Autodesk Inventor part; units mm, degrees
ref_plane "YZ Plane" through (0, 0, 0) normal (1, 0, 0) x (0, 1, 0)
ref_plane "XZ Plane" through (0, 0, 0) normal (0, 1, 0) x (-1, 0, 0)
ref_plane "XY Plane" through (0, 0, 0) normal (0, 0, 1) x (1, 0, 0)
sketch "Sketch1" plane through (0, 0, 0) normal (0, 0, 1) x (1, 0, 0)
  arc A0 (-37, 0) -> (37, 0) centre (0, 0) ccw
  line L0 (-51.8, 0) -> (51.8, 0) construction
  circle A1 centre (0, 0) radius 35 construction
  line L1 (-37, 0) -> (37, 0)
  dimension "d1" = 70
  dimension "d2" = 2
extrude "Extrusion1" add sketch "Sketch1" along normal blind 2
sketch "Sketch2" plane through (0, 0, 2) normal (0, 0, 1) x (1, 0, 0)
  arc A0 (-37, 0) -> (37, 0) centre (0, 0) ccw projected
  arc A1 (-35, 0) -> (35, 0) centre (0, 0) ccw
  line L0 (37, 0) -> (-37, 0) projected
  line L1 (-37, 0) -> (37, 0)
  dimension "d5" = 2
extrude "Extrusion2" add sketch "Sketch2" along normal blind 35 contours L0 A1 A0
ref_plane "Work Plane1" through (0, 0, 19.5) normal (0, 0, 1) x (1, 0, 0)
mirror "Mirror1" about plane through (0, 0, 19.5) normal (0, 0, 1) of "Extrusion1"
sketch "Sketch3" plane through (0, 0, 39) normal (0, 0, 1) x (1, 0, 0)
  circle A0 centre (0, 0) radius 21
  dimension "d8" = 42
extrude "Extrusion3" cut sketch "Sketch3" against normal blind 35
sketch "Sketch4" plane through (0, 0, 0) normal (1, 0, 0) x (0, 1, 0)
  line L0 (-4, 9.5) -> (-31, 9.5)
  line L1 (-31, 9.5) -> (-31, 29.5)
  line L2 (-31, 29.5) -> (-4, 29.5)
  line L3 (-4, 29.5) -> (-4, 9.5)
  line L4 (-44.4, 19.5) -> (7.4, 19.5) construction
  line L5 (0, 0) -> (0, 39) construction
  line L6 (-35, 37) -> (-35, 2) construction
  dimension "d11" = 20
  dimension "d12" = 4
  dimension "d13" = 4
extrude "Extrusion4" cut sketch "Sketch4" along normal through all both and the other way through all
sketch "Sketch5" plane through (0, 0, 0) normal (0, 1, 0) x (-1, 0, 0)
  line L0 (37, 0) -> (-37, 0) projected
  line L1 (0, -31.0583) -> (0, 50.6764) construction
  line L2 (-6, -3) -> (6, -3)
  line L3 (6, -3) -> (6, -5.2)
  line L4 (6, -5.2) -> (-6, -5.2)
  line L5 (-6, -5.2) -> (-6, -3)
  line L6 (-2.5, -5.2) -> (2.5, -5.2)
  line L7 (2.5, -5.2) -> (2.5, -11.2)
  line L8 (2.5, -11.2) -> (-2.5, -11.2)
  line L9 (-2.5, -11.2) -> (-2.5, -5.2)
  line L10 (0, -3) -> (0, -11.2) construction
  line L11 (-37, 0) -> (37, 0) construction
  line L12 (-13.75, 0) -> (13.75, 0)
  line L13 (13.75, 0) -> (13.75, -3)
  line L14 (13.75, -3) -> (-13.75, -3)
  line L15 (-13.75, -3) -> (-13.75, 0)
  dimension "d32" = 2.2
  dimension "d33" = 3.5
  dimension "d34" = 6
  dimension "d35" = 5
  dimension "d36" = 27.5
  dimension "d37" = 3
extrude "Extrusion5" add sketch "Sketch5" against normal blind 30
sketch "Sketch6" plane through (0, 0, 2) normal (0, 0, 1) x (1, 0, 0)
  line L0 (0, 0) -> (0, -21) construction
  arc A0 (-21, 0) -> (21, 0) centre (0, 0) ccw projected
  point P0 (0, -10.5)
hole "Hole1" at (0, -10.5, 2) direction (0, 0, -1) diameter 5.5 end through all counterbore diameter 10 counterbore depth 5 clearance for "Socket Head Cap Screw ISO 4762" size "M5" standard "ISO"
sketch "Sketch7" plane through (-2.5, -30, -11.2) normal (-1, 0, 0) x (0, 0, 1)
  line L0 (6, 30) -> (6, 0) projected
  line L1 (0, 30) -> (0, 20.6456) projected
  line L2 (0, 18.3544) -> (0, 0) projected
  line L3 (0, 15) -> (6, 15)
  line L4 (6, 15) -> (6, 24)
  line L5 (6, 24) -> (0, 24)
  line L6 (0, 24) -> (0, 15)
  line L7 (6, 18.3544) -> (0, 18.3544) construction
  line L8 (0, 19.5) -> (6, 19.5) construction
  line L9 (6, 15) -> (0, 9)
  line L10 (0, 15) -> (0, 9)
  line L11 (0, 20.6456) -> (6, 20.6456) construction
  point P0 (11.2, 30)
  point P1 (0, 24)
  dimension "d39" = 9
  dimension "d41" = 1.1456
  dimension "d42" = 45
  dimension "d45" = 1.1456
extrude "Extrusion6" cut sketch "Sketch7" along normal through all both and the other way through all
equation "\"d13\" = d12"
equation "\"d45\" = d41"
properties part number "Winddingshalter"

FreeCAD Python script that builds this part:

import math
import FreeCAD as App
import Part
import Sketcher
Q = App.Units.Quantity


def add_polygon(sketch, points):
    """Adds a closed chain of lines whose ends are joined by coincident constraints."""
    first, n = sketch.GeometryCount, len(points)
    for a, b in zip(points, points[1:] + points[:1]):
        sketch.addGeometry(Part.LineSegment(App.Vector(*a, 0), App.Vector(*b, 0)), False)
    for i in range(n):
        sketch.addConstraint(Sketcher.Constraint("Coincident", first + i, 2, first + (i + 1) % n, 1))

doc = App.newDocument("Part")
body = doc.addObject("PartDesign::Body", "Body")

# Sketch on XY plane
sketch1 = body.newObject("Sketcher::SketchObject", "Sketch")
sketch1.AttachmentSupport = (doc.getObject("XY_Plane"), [""])
sketch1.MapMode = "FlatFace"
sketch1.addGeometry([
    Part.LineSegment(App.Vector(37, 0, 0), App.Vector(-37, 0, 0)),
    Part.ArcOfCircle(Part.Circle(App.Vector(0, 0, 0), App.Vector(0, 0, 1), 37), math.radians(180), math.radians(360)),
], False)
sketch1.addConstraint([
    Sketcher.Constraint("Coincident", 0, 1, 1, 2),
    Sketcher.Constraint("Coincident", 1, 1, 0, 2),
    Sketcher.Constraint("Horizontal", 0),
    Sketcher.Constraint("Coincident", 1, 3, -1, 1),
    Sketcher.Constraint("PointOnObject", 0, 1, -1),
    Sketcher.Constraint("Radius", 1, 37.0),
])
pad1 = body.newObject("PartDesign::Pad", "Pad")
pad1.Profile = sketch1
pad1.Length = 2

# Sketch on XY plane
sketch2 = body.newObject("Sketcher::SketchObject", "Sketch001")
sketch2.AttachmentSupport = (doc.getObject("XY_Plane"), [""])
sketch2.MapMode = "FlatFace"
sketch2.AttachmentOffset = App.Placement(App.Vector(0, 0, 2), App.Rotation())
sketch2.addGeometry([
    Part.LineSegment(App.Vector(-35, 0, 0), App.Vector(-37, 0, 0)),
    Part.ArcOfCircle(Part.Circle(App.Vector(0, 0, 0), App.Vector(0, 0, 1), 37), math.radians(180), math.radians(360)),
    Part.LineSegment(App.Vector(37, 0, 0), App.Vector(35, 0, 0)),
    Part.ArcOfCircle(Part.Circle(App.Vector(0, 0, 0), App.Vector(0, 0, 1), 35), math.radians(180), math.radians(360)),
], False)
sketch2.addConstraint([
    Sketcher.Constraint("Coincident", 0, 2, 1, 1),
    Sketcher.Constraint("Coincident", 1, 2, 2, 1),
    Sketcher.Constraint("Coincident", 2, 2, 3, 2),
    Sketcher.Constraint("Coincident", 3, 1, 0, 1),
    Sketcher.Constraint("Horizontal", 0),
    Sketcher.Constraint("Horizontal", 2),
    Sketcher.Constraint("Coincident", 1, 3, -1, 1),
    Sketcher.Constraint("Coincident", 3, 3, -1, 1),
    Sketcher.Constraint("PointOnObject", 0, 2, -1),
    Sketcher.Constraint("PointOnObject", 1, 2, -1),
    Sketcher.Constraint("DistanceX", 0, 2, 0, 1, 2.0),
    Sketcher.Constraint("Radius", 1, 37.0),
])
pad2 = body.newObject("PartDesign::Pad", "Pad001")
pad2.Profile = sketch2
pad2.Length = 35
doc.recompute()

datumplane = body.newObject("PartDesign::Plane", "DatumPlane")
datumplane.AttachmentSupport = (doc.getObject("XY_Plane"), [""])
datumplane.MapMode = "FlatFace"
datumplane.AttachmentOffset = App.Placement(App.Vector(0, 0, 19.5), App.Rotation())
mirrored = body.newObject("PartDesign::Mirrored", "Mirrored")
mirrored.Originals = [pad1]
mirrored.MirrorPlane = (datumplane, [""])
body.Tip = mirrored

# Sketch on XY plane
sketch3 = body.newObject("Sketcher::SketchObject", "Sketch002")
sketch3.AttachmentSupport = (doc.getObject("XY_Plane"), [""])
sketch3.MapMode = "FlatFace"
sketch3.AttachmentOffset = App.Placement(App.Vector(0, 0, 39), App.Rotation())
sketch3.addGeometry(Part.Circle(App.Vector(0, 0, 0), App.Vector(0, 0, 1), 21), False)
sketch3.addConstraint([
    Sketcher.Constraint("Coincident", 0, 3, -1, 1),
    Sketcher.Constraint("Diameter", 0, 42.0),
])
pocket1 = body.newObject("PartDesign::Pocket", "Pocket")
pocket1.Profile = sketch3
pocket1.Length = 35

# Sketch on YZ plane
sketch4 = body.newObject("Sketcher::SketchObject", "Sketch003")
sketch4.AttachmentSupport = (doc.getObject("YZ_Plane"), [""])
sketch4.MapMode = "FlatFace"
add_polygon(sketch4, [(-31, 9.5), (-4, 9.5), (-4, 29.5), (-31, 29.5)])  # lines 0-3
sketch4.addConstraint([
    Sketcher.Constraint("Horizontal", 0),
    Sketcher.Constraint("Vertical", 1),
    Sketcher.Constraint("Horizontal", 2),
    Sketcher.Constraint("Vertical", 3),
    Sketcher.Constraint("DistanceY", 1, 1, 1, 2, 20.0),
    Sketcher.Constraint("DistanceX", 0, 2, -1, 1, 4.0),
    Sketcher.Constraint("DistanceX", 0, 1, 0, 2, 27.0),
    Sketcher.Constraint("DistanceY", -1, 1, 0, 2, 9.5),
])
pocket2 = body.newObject("PartDesign::Pocket", "Pocket001")
pocket2.Profile = sketch4
pocket2.Type = "ThroughAll"
pocket2.Midplane = True

# Sketch on XZ plane
sketch5 = body.newObject("Sketcher::SketchObject", "Sketch004")
sketch5.AttachmentSupport = (doc.getObject("XZ_Plane"), [""])
sketch5.MapMode = "FlatFace"
add_polygon(sketch5, [(-13.75, -3), (-13.75, 0), (13.75, 0), (13.75, -3), (6, -3), (6, -5.2), (2.5, -5.2), (2.5, -11.2), (-2.5, -11.2), (-2.5, -5.2), (-6, -5.2), (-6, -3)])  # lines 0-11
sketch5.addConstraint([
    Sketcher.Constraint("Vertical", 0),
    Sketcher.Constraint("Horizontal", 1),
    Sketcher.Constraint("Vertical", 2),
    Sketcher.Constraint("Horizontal", 3),
    Sketcher.Constraint("Vertical", 4),
    Sketcher.Constraint("Horizontal", 5),
    Sketcher.Constraint("Vertical", 6),
    Sketcher.Constraint("Horizontal", 7),
    Sketcher.Constraint("Vertical", 8),
    Sketcher.Constraint("Horizontal", 9),
    Sketcher.Constraint("Vertical", 10),
    Sketcher.Constraint("Horizontal", 11),
    Sketcher.Constraint("Symmetric", 0, 2, 1, 2, -1, 1),
    Sketcher.Constraint("Symmetric", 5, 2, 8, 2, -2),
    Sketcher.Constraint("Symmetric", 3, 2, 10, 2, -2),
    Sketcher.Constraint("DistanceX", 7, 2, 7, 1, 5.0),
    Sketcher.Constraint("DistanceY", 0, 1, 0, 2, 3.0),
    Sketcher.Constraint("DistanceY", 6, 2, 6, 1, 6.0),
    Sketcher.Constraint("DistanceX", 1, 1, 1, 2, 27.5),
    Sketcher.Constraint("DistanceX", 5, 2, 5, 1, 3.5),
    Sketcher.Constraint("DistanceY", 4, 2, 4, 1, 2.2),
])
pad3 = body.newObject("PartDesign::Pad", "Pad002")
pad3.Profile = sketch5
pad3.Length = 30

# Sketch on XY plane
sketch6 = body.newObject("Sketcher::SketchObject", "Sketch005")
sketch6.AttachmentSupport = (doc.getObject("XY_Plane"), [""])
sketch6.MapMode = "FlatFace"
sketch6.AttachmentOffset = App.Placement(App.Vector(0, 0, 2), App.Rotation())
sketch6.addGeometry(Part.Circle(App.Vector(0, -10.5, 0), App.Vector(0, 0, 1), 2.75), False)
sketch6.addConstraint([
    Sketcher.Constraint("PointOnObject", 0, 3, -2),
    Sketcher.Constraint("Diameter", 0, 5.5),
    Sketcher.Constraint("DistanceY", 0, 3, -1, 1, 10.5),
])
doc.recompute()
hole = body.newObject("PartDesign::Hole", "Hole")
hole.Profile = sketch6
hole.ThreadType = "None"
hole.Diameter = 5.5
hole.DepthType = "ThroughAll"
hole.HoleCutType = "Counterbore"
hole.HoleCutDiameter = 10
hole.HoleCutDepth = 5

# Sketch on YZ plane
sketch7 = body.newObject("Sketcher::SketchObject", "Sketch006")
sketch7.AttachmentSupport = (doc.getObject("YZ_Plane"), [""])
sketch7.MapMode = "FlatFace"
sketch7.AttachmentOffset = App.Placement(App.Vector(0, 0, -2.5), App.Rotation())
add_polygon(sketch7, [(-15, -5.2), (-6, -5.2), (-6, -11.2), (-21, -11.2)])  # lines 0-3
sketch7.addConstraint([
    Sketcher.Constraint("Horizontal", 0),
    Sketcher.Constraint("Vertical", 1),
    Sketcher.Constraint("Horizontal", 2),
    Sketcher.Constraint("DistanceX", 0, 1, 0, 2, 9.0),
    Sketcher.Constraint("Angle", 3, Q("45 deg")),
    Sketcher.Constraint("DistanceX", 2, 2, 2, 1, 15.0),
    Sketcher.Constraint("DistanceX", 0, 2, -1, 1, 6.0),
    Sketcher.Constraint("DistanceY", 0, 2, -1, 1, 5.2),
])
pocket3 = body.newObject("PartDesign::Pocket", "Pocket002")
pocket3.Profile = sketch7
pocket3.Type = "ThroughAll"
pocket3.Midplane = True

doc.recompute()
